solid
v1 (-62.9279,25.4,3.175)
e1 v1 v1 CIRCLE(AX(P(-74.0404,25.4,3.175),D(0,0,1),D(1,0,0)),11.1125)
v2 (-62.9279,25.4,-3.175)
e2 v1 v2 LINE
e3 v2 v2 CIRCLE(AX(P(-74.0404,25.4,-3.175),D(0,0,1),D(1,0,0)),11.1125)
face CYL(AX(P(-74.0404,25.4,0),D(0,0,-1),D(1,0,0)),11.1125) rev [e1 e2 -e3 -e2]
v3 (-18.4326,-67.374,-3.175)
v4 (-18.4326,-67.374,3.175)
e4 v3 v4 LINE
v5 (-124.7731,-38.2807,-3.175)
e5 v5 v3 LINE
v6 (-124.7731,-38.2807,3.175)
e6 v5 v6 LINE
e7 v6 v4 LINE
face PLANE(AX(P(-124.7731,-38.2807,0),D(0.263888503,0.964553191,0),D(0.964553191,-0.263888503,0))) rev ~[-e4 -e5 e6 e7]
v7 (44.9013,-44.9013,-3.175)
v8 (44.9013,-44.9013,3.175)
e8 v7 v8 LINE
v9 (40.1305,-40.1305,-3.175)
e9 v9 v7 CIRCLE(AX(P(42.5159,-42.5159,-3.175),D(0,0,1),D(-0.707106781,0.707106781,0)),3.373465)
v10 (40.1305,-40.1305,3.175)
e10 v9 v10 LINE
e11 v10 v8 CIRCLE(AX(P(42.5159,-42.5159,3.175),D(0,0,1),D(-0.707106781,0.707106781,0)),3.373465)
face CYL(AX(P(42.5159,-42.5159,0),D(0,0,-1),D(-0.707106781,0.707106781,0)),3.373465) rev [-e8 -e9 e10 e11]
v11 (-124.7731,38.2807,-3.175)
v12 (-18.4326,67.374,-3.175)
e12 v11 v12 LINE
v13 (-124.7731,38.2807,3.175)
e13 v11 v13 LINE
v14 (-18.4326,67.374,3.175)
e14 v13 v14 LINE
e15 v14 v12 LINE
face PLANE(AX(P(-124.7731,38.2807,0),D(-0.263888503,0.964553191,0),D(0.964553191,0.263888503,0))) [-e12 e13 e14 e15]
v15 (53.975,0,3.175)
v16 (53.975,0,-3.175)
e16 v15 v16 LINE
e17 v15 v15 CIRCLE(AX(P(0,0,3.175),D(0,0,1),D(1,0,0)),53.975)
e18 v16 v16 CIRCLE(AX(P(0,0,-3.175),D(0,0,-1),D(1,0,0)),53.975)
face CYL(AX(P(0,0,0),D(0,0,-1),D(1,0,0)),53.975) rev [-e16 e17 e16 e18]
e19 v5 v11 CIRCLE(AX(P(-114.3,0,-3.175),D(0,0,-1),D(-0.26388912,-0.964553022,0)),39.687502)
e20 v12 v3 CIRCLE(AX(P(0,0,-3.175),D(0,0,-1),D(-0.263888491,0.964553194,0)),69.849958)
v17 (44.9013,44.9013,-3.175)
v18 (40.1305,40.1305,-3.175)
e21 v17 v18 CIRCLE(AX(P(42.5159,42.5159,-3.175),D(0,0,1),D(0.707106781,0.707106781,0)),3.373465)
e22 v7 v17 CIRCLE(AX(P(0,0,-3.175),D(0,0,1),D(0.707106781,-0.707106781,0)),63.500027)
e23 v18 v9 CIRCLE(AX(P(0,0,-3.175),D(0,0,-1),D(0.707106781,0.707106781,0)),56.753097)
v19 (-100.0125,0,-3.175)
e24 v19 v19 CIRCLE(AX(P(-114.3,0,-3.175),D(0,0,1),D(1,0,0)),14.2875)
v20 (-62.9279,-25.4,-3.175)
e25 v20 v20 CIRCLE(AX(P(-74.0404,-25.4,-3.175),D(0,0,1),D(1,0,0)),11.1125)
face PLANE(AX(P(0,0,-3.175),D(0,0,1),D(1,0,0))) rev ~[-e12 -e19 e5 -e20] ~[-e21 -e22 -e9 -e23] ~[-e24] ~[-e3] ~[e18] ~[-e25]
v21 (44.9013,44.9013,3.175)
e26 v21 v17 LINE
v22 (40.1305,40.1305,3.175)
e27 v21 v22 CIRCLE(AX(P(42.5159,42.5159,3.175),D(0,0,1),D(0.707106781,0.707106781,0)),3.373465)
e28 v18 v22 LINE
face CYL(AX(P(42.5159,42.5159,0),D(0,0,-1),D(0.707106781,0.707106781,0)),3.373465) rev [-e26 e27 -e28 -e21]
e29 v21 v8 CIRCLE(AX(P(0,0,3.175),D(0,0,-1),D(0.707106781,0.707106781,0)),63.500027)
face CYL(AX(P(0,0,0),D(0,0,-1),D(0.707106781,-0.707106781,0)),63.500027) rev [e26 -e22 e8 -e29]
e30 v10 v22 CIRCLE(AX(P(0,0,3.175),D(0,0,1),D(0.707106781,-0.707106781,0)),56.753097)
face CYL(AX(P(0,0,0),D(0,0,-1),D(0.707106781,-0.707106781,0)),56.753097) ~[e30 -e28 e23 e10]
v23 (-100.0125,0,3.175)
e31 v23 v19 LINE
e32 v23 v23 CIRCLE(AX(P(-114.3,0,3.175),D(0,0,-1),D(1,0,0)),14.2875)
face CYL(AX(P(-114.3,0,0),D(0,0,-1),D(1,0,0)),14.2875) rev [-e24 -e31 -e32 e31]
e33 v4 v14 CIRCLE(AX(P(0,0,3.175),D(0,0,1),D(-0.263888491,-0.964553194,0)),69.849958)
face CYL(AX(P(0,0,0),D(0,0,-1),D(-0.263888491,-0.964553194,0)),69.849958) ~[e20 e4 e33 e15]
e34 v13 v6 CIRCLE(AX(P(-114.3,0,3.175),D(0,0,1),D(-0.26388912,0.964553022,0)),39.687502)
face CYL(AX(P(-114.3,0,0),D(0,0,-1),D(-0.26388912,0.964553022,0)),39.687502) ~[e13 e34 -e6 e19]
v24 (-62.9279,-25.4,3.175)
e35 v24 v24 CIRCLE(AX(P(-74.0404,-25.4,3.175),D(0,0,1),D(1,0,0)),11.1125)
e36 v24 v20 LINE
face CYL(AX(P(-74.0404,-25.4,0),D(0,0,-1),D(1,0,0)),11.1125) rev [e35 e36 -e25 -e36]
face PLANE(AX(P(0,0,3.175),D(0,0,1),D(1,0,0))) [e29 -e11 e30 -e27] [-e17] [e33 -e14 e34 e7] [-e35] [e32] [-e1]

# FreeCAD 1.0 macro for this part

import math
import FreeCAD as App
import Part
import Sketcher

V = App.Vector
Q = App.Units.Quantity

doc = App.newDocument("Part")
body = doc.addObject("PartDesign::Body", "Body")

sketch1 = body.newObject("Sketcher::SketchObject", "Sketch")
sketch1.AttachmentSupport = (doc.getObject("XY_Plane"), [""])
sketch1.MapMode = "FlatFace"
sketch1.addGeometry([
    Part.LineSegment(V(-18.4, 67.4, 0), V(-124.8, 38.3, 0)),
    Part.ArcOfCircle(Part.Circle(V(-114.3, 0, 0), V(0, 0, 1), 39.7), math.radians(105), math.radians(255)),
    Part.LineSegment(V(-124.8, -38.3, 0), V(-18.4, -67.4, 0)),
    Part.ArcOfCircle(Part.Circle(V(0, 0, 0), V(0, 0, 1), 69.8), math.radians(-105), math.radians(105)),
    Part.Circle(V(0, 0, 0), V(0, 0, 1), 54),
    Part.ArcOfCircle(Part.Circle(V(0, 0, 0), V(0, 0, 1), 63.5), math.radians(-45), math.radians(45)),
    Part.ArcOfCircle(Part.Circle(V(42.5, -42.5, 0), V(0, 0, 1), 3.4), math.radians(135), math.radians(315)),
    Part.ArcOfCircle(Part.Circle(V(0, 0, 0), V(0, 0, 1), 56.8), math.radians(-45), math.radians(45)),
    Part.ArcOfCircle(Part.Circle(V(42.5, 42.5, 0), V(0, 0, 1), 3.4), math.radians(45), math.radians(225)),
    Part.Circle(V(-114.3, 0, 0), V(0, 0, 1), 14.3),
    Part.Circle(V(-74, 25.4, 0), V(0, 0, 1), 11.1),
    Part.Circle(V(-74, -25.4, 0), V(0, 0, 1), 11.1),
], False)
sketch1.addConstraint([
    Sketcher.Constraint("Tangent", 0, 2, 1, 1),
    Sketcher.Constraint("Tangent", 1, 2, 2, 1),
    Sketcher.Constraint("Tangent", 2, 2, 3, 1),
    Sketcher.Constraint("Tangent", 3, 2, 0, 1),
    Sketcher.Constraint("Tangent", 5, 1, 6, 2),
    Sketcher.Constraint("Tangent", 6, 1, 7, 1),
    Sketcher.Constraint("Tangent", 7, 2, 8, 2),
    Sketcher.Constraint("Tangent", 8, 1, 5, 2),
    Sketcher.Constraint("Coincident", 3, 3, -1, 1),
    Sketcher.Constraint("Coincident", 4, 3, -1, 1),
    Sketcher.Constraint("Coincident", 5, 3, -1, 1),
    Sketcher.Constraint("Coincident", 7, 3, -1, 1),
    Sketcher.Constraint("Coincident", 9, 3, 1, 3),
    Sketcher.Constraint("Equal", 10, 11),
    Sketcher.Constraint("Symmetric", 10, 3, 11, 3, -1),
    Sketcher.Constraint("PointOnObject", 1, 3, -1),
    Sketcher.Constraint("Vertical", 6, 3, 8, 3),
    Sketcher.Constraint("Diameter", 9, Q("1.125 in")),
    Sketcher.Constraint("Diameter", 10, Q("0.875 in")),
    Sketcher.Constraint("DistanceY", -1, 1, 10, 3, Q("1 in")),
    Sketcher.Constraint("DistanceX", 1, 3, -1, 1, Q("4.5 in")),
    Sketcher.Constraint("Radius", 5, Q("2.5 in")),
    Sketcher.Constraint("Diameter", 4, Q("4.25 in")),
    Sketcher.Constraint("Radius", 3, Q("2.75 in")),
    Sketcher.Constraint("Radius", 6, 3.3735),
    Sketcher.Constraint("Radius", 1, Q("1.5625 in")),
    Sketcher.Constraint("DistanceY", 6, 3, 8, 3, Q("3.3477 in")),
    Sketcher.Constraint("DistanceX", 10, 3, -1, 1, 74.0404),
])
pad1 = body.newObject("PartDesign::Pad", "Pad")
pad1.Profile = sketch1
pad1.Length = Q("0.25 in")
pad1.Midplane = True

doc.recompute()
